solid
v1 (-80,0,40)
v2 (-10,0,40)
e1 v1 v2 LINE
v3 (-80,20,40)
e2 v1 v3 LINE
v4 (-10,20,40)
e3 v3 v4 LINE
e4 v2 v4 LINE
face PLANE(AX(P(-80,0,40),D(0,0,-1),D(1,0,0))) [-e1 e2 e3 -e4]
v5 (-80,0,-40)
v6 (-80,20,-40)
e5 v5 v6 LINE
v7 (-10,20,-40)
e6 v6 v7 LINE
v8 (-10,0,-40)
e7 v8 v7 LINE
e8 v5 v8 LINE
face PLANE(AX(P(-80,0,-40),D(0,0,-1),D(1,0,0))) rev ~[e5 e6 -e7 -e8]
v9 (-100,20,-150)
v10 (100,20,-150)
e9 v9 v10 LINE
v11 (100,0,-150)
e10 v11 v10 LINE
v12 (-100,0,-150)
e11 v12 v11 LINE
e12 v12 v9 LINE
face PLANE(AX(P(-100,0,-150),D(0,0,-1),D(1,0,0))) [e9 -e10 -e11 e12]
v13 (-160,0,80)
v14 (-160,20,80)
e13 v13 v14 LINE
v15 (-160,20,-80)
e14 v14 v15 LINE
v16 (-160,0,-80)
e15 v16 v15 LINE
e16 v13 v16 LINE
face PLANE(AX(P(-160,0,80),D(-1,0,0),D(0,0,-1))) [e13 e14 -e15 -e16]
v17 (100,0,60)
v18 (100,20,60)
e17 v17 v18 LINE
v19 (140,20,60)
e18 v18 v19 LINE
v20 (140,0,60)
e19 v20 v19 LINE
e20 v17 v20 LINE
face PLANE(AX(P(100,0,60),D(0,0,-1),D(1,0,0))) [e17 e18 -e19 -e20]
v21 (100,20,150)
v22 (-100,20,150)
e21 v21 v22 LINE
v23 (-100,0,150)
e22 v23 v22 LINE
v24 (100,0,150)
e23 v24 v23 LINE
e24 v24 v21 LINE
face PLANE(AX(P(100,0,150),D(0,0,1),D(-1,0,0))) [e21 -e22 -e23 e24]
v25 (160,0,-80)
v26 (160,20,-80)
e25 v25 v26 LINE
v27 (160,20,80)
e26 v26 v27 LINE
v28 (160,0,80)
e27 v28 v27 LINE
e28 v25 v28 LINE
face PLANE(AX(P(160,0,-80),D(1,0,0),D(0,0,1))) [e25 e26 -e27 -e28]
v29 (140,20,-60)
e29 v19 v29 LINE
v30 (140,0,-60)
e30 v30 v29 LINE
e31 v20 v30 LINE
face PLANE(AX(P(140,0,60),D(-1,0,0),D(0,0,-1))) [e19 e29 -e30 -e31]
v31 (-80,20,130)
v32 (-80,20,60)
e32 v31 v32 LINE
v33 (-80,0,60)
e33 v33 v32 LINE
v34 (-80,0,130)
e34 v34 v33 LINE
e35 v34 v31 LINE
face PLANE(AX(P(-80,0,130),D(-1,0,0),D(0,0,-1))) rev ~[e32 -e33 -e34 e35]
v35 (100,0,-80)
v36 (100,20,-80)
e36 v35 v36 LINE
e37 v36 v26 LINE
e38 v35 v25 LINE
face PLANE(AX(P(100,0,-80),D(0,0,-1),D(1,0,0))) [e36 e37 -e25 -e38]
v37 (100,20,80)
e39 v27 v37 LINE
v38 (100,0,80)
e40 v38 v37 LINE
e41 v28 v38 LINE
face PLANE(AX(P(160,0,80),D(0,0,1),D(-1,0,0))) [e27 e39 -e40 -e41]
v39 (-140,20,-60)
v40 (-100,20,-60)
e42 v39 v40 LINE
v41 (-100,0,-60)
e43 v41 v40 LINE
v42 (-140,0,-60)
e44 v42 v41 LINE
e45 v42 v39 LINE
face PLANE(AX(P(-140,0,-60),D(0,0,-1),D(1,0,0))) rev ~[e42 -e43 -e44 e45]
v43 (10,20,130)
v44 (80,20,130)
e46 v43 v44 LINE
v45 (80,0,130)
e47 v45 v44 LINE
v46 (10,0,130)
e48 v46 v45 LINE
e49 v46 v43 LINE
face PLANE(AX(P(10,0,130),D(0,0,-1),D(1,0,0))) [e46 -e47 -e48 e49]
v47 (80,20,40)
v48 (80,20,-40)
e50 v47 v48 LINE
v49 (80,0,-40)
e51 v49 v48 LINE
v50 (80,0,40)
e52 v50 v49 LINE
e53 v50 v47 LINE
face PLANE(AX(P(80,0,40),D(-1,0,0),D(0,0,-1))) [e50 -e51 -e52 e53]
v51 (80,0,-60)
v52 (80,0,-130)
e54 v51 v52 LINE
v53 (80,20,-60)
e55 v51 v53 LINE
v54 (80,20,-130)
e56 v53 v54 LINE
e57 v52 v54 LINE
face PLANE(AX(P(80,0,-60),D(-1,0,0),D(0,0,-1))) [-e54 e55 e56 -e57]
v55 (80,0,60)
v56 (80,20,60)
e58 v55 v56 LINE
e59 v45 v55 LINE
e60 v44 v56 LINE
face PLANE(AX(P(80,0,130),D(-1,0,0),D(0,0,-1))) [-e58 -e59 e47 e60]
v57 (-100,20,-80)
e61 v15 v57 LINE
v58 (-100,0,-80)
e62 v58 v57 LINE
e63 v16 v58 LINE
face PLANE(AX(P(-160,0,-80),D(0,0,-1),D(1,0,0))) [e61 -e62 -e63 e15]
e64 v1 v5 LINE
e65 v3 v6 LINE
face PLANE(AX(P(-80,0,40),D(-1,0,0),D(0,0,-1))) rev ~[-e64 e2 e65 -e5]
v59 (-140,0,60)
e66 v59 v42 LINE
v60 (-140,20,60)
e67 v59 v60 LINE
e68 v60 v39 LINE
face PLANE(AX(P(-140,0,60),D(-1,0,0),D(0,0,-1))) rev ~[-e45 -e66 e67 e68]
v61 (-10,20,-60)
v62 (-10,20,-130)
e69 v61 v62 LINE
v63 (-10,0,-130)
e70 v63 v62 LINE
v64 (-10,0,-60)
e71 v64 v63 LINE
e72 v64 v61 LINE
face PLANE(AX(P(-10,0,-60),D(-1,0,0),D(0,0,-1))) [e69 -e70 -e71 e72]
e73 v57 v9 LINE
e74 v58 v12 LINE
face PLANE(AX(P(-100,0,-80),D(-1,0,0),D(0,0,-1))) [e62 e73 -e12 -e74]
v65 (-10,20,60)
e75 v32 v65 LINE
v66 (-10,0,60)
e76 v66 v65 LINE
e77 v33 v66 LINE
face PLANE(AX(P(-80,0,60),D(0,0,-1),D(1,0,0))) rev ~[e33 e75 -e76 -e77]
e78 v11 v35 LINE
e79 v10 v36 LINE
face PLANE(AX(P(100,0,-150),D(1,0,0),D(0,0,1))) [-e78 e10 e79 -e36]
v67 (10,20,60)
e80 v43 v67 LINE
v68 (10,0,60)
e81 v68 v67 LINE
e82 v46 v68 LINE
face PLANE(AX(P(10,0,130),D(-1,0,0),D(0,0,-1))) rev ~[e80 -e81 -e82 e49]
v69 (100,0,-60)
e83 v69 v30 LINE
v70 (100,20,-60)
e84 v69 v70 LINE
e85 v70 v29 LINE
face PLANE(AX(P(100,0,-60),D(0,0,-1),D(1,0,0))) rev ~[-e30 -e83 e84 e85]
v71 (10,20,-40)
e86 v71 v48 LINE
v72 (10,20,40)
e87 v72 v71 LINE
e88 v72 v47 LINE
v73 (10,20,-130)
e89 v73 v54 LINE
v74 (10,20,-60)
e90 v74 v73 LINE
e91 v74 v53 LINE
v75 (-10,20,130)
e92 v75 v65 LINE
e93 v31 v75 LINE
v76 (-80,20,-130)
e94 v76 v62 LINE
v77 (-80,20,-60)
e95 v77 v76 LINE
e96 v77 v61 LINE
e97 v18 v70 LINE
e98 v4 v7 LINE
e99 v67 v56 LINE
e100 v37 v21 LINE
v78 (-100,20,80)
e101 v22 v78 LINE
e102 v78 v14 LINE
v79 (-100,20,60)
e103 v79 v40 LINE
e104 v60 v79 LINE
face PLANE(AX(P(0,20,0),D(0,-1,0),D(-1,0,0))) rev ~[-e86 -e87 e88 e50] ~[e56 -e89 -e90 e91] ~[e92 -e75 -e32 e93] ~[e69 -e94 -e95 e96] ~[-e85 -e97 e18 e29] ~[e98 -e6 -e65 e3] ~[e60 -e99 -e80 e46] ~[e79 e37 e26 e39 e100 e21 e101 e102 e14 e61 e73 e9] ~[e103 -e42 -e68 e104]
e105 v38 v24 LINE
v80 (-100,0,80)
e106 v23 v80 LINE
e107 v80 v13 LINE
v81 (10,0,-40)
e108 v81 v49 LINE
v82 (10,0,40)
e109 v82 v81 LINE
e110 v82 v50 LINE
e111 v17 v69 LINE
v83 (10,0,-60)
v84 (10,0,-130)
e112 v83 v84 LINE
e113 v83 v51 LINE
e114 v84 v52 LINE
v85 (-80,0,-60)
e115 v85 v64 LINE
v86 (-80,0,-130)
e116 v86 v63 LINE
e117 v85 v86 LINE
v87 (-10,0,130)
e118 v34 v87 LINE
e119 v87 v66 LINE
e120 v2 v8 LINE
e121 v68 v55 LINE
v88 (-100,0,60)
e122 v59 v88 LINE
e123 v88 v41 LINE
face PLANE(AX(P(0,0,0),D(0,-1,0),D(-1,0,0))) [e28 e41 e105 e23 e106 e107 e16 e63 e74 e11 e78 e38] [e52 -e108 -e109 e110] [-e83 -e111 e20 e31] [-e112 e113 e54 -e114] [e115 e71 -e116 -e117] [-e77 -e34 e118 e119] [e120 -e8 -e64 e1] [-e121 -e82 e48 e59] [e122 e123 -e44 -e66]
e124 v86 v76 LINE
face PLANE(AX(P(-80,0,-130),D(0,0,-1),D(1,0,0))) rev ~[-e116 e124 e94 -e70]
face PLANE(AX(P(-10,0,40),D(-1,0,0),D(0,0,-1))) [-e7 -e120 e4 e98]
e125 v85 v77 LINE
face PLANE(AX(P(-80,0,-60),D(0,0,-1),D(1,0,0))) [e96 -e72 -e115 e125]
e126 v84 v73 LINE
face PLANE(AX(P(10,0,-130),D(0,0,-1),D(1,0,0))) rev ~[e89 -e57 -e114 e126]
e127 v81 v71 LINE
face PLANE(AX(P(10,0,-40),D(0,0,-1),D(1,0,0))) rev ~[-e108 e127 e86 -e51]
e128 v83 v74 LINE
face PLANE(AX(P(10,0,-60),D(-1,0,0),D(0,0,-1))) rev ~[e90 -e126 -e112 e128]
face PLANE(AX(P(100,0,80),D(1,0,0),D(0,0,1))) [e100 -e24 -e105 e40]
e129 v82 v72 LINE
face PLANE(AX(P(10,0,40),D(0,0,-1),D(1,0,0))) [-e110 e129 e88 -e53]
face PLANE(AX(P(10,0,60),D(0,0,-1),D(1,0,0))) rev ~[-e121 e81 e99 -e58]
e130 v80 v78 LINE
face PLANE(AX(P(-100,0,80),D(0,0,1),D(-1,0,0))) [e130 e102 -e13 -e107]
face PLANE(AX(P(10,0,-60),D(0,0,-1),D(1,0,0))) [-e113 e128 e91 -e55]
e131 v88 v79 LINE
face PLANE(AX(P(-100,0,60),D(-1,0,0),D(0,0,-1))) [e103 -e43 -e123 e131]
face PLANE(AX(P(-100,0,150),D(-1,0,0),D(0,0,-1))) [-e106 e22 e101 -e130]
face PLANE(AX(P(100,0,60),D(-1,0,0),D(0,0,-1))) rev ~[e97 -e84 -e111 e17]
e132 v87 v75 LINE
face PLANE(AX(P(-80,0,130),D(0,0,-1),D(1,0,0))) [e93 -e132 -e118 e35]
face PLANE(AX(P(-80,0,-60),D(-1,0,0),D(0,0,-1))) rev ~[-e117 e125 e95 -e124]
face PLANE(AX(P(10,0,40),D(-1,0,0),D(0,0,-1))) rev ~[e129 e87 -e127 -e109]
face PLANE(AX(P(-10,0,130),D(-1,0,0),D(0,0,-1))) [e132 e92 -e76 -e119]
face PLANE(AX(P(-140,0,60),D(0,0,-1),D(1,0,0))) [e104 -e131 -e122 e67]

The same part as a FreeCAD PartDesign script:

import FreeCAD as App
import Part
import Sketcher
Q = App.Units.Quantity

doc = App.newDocument("Part")
body = doc.addObject("PartDesign::Body", "Body")

# Sketch on XZ plane
sketch1 = doc.addObject("Sketcher::SketchObject", "Sketch")
body.addObject(sketch1)
sketch1.AttachmentSupport = (doc.XZ_Plane, [""])
sketch1.MapMode = "FlatFace"
sketch1.addGeometry(Part.LineSegment(App.Vector(100, -150, 0), App.Vector(-100, -150, 0)), False)
sketch1.addGeometry(Part.LineSegment(App.Vector(-100, -150, 0), App.Vector(-100, -80, 0)), False)
sketch1.addGeometry(Part.LineSegment(App.Vector(-100, -80, 0), App.Vector(-160, -80, 0)), False)
sketch1.addGeometry(Part.LineSegment(App.Vector(-160, -80, 0), App.Vector(-160, 80, 0)), False)
sketch1.addGeometry(Part.LineSegment(App.Vector(-160, 80, 0), App.Vector(-100, 80, 0)), False)
sketch1.addGeometry(Part.LineSegment(App.Vector(-100, 80, 0), App.Vector(-100, 150, 0)), False)
sketch1.addGeometry(Part.LineSegment(App.Vector(-100, 150, 0), App.Vector(100, 150, 0)), False)
sketch1.addGeometry(Part.LineSegment(App.Vector(100, 150, 0), App.Vector(100, 80, 0)), False)
sketch1.addGeometry(Part.LineSegment(App.Vector(100, 80, 0), App.Vector(160, 80, 0)), False)
sketch1.addGeometry(Part.LineSegment(App.Vector(160, 80, 0), App.Vector(160, -80, 0)), False)
sketch1.addGeometry(Part.LineSegment(App.Vector(160, -80, 0), App.Vector(100, -80, 0)), False)
sketch1.addGeometry(Part.LineSegment(App.Vector(100, -80, 0), App.Vector(100, -150, 0)), False)
sketch1.addGeometry(Part.LineSegment(App.Vector(10, 130, 0), App.Vector(10, 60, 0)), False)
sketch1.addGeometry(Part.LineSegment(App.Vector(10, 60, 0), App.Vector(80, 60, 0)), False)
sketch1.addGeometry(Part.LineSegment(App.Vector(80, 60, 0), App.Vector(80, 130, 0)), False)
sketch1.addGeometry(Part.LineSegment(App.Vector(80, 130, 0), App.Vector(10, 130, 0)), False)
sketch1.addGeometry(Part.LineSegment(App.Vector(-80, 130, 0), App.Vector(-80, 60, 0)), False)
sketch1.addGeometry(Part.LineSegment(App.Vector(-80, 60, 0), App.Vector(-10, 60, 0)), False)
sketch1.addGeometry(Part.LineSegment(App.Vector(-10, 60, 0), App.Vector(-10, 130, 0)), False)
sketch1.addGeometry(Part.LineSegment(App.Vector(-10, 130, 0), App.Vector(-80, 130, 0)), False)
sketch1.addGeometry(Part.LineSegment(App.Vector(100, 60, 0), App.Vector(100, -60, 0)), False)
sketch1.addGeometry(Part.LineSegment(App.Vector(100, -60, 0), App.Vector(140, -60, 0)), False)
sketch1.addGeometry(Part.LineSegment(App.Vector(140, -60, 0), App.Vector(140, 60, 0)), False)
sketch1.addGeometry(Part.LineSegment(App.Vector(140, 60, 0), App.Vector(100, 60, 0)), False)
sketch1.addGeometry(Part.LineSegment(App.Vector(10, 40, 0), App.Vector(10, -40, 0)), False)
sketch1.addGeometry(Part.LineSegment(App.Vector(10, -40, 0), App.Vector(80, -40, 0)), False)
sketch1.addGeometry(Part.LineSegment(App.Vector(80, -40, 0), App.Vector(80, 40, 0)), False)
sketch1.addGeometry(Part.LineSegment(App.Vector(80, 40, 0), App.Vector(10, 40, 0)), False)
sketch1.addGeometry(Part.LineSegment(App.Vector(10, -60, 0), App.Vector(10, -130, 0)), False)
sketch1.addGeometry(Part.LineSegment(App.Vector(10, -130, 0), App.Vector(80, -130, 0)), False)
sketch1.addGeometry(Part.LineSegment(App.Vector(80, -130, 0), App.Vector(80, -60, 0)), False)
sketch1.addGeometry(Part.LineSegment(App.Vector(80, -60, 0), App.Vector(10, -60, 0)), False)
sketch1.addGeometry(Part.LineSegment(App.Vector(-80, 40, 0), App.Vector(-80, -40, 0)), False)
sketch1.addGeometry(Part.LineSegment(App.Vector(-80, -40, 0), App.Vector(-10, -40, 0)), False)
sketch1.addGeometry(Part.LineSegment(App.Vector(-10, -40, 0), App.Vector(-10, 40, 0)), False)
sketch1.addGeometry(Part.LineSegment(App.Vector(-10, 40, 0), App.Vector(-80, 40, 0)), False)
sketch1.addGeometry(Part.LineSegment(App.Vector(-140, 60, 0), App.Vector(-140, -60, 0)), False)
sketch1.addGeometry(Part.LineSegment(App.Vector(-140, -60, 0), App.Vector(-100, -60, 0)), False)
sketch1.addGeometry(Part.LineSegment(App.Vector(-100, -60, 0), App.Vector(-100, 60, 0)), False)
sketch1.addGeometry(Part.LineSegment(App.Vector(-100, 60, 0), App.Vector(-140, 60, 0)), False)
sketch1.addGeometry(Part.LineSegment(App.Vector(-80, -60, 0), App.Vector(-80, -130, 0)), False)
sketch1.addGeometry(Part.LineSegment(App.Vector(-80, -130, 0), App.Vector(-10, -130, 0)), False)
sketch1.addGeometry(Part.LineSegment(App.Vector(-10, -130, 0), App.Vector(-10, -60, 0)), False)
sketch1.addGeometry(Part.LineSegment(App.Vector(-10, -60, 0), App.Vector(-80, -60, 0)), False)
sketch1.addConstraint(Sketcher.Constraint("Coincident", 0, 2, 1, 1))
sketch1.addConstraint(Sketcher.Constraint("Coincident", 1, 2, 2, 1))
sketch1.addConstraint(Sketcher.Constraint("Coincident", 2, 2, 3, 1))
sketch1.addConstraint(Sketcher.Constraint("Coincident", 3, 2, 4, 1))
sketch1.addConstraint(Sketcher.Constraint("Coincident", 4, 2, 5, 1))
sketch1.addConstraint(Sketcher.Constraint("Coincident", 5, 2, 6, 1))
sketch1.addConstraint(Sketcher.Constraint("Coincident", 6, 2, 7, 1))
sketch1.addConstraint(Sketcher.Constraint("Coincident", 7, 2, 8, 1))
sketch1.addConstraint(Sketcher.Constraint("Coincident", 8, 2, 9, 1))
sketch1.addConstraint(Sketcher.Constraint("Coincident", 9, 2, 10, 1))
sketch1.addConstraint(Sketcher.Constraint("Coincident", 10, 2, 11, 1))
sketch1.addConstraint(Sketcher.Constraint("Coincident", 11, 2, 0, 1))
sketch1.addConstraint(Sketcher.Constraint("Coincident", 12, 2, 13, 1))
sketch1.addConstraint(Sketcher.Constraint("Coincident", 13, 2, 14, 1))
sketch1.addConstraint(Sketcher.Constraint("Coincident", 14, 2, 15, 1))
sketch1.addConstraint(Sketcher.Constraint("Coincident", 15, 2, 12, 1))
sketch1.addConstraint(Sketcher.Constraint("Coincident", 16, 2, 17, 1))
sketch1.addConstraint(Sketcher.Constraint("Coincident", 17, 2, 18, 1))
sketch1.addConstraint(Sketcher.Constraint("Coincident", 18, 2, 19, 1))
sketch1.addConstraint(Sketcher.Constraint("Coincident", 19, 2, 16, 1))
sketch1.addConstraint(Sketcher.Constraint("Coincident", 20, 2, 21, 1))
sketch1.addConstraint(Sketcher.Constraint("Coincident", 21, 2, 22, 1))
sketch1.addConstraint(Sketcher.Constraint("Coincident", 22, 2, 23, 1))
sketch1.addConstraint(Sketcher.Constraint("Coincident", 23, 2, 20, 1))
sketch1.addConstraint(Sketcher.Constraint("Coincident", 24, 2, 25, 1))
sketch1.addConstraint(Sketcher.Constraint("Coincident", 25, 2, 26, 1))
sketch1.addConstraint(Sketcher.Constraint("Coincident", 26, 2, 27, 1))
sketch1.addConstraint(Sketcher.Constraint("Coincident", 27, 2, 24, 1))
sketch1.addConstraint(Sketcher.Constraint("Coincident", 28, 2, 29, 1))
sketch1.addConstraint(Sketcher.Constraint("Coincident", 29, 2, 30, 1))
sketch1.addConstraint(Sketcher.Constraint("Coincident", 30, 2, 31, 1))
sketch1.addConstraint(Sketcher.Constraint("Coincident", 31, 2, 28, 1))
sketch1.addConstraint(Sketcher.Constraint("Coincident", 32, 2, 33, 1))
sketch1.addConstraint(Sketcher.Constraint("Coincident", 33, 2, 34, 1))
sketch1.addConstraint(Sketcher.Constraint("Coincident", 34, 2, 35, 1))
sketch1.addConstraint(Sketcher.Constraint("Coincident", 35, 2, 32, 1))
sketch1.addConstraint(Sketcher.Constraint("Coincident", 36, 2, 37, 1))
sketch1.addConstraint(Sketcher.Constraint("Coincident", 37, 2, 38, 1))
sketch1.addConstraint(Sketcher.Constraint("Coincident", 38, 2, 39, 1))
sketch1.addConstraint(Sketcher.Constraint("Coincident", 39, 2, 36, 1))
sketch1.addConstraint(Sketcher.Constraint("Coincident", 40, 2, 41, 1))
sketch1.addConstraint(Sketcher.Constraint("Coincident", 41, 2, 42, 1))
sketch1.addConstraint(Sketcher.Constraint("Coincident", 42, 2, 43, 1))
sketch1.addConstraint(Sketcher.Constraint("Coincident", 43, 2, 40, 1))
sketch1.addConstraint(Sketcher.Constraint("Horizontal", 0))
sketch1.addConstraint(Sketcher.Constraint("Vertical", 1))
sketch1.addConstraint(Sketcher.Constraint("Horizontal", 2))
sketch1.addConstraint(Sketcher.Constraint("Vertical", 3))
sketch1.addConstraint(Sketcher.Constraint("Horizontal", 4))
sketch1.addConstraint(Sketcher.Constraint("Vertical", 5))
sketch1.addConstraint(Sketcher.Constraint("Horizontal", 6))
sketch1.addConstraint(Sketcher.Constraint("Vertical", 7))
sketch1.addConstraint(Sketcher.Constraint("Horizontal", 8))
sketch1.addConstraint(Sketcher.Constraint("Vertical", 9))
sketch1.addConstraint(Sketcher.Constraint("Horizontal", 10))
sketch1.addConstraint(Sketcher.Constraint("Vertical", 11))
sketch1.addConstraint(Sketcher.Constraint("Vertical", 12))
sketch1.addConstraint(Sketcher.Constraint("Horizontal", 13))
sketch1.addConstraint(Sketcher.Constraint("Vertical", 14))
sketch1.addConstraint(Sketcher.Constraint("Horizontal", 15))
sketch1.addConstraint(Sketcher.Constraint("Vertical", 16))
sketch1.addConstraint(Sketcher.Constraint("Horizontal", 17))
sketch1.addConstraint(Sketcher.Constraint("Vertical", 18))
sketch1.addConstraint(Sketcher.Constraint("Horizontal", 19))
sketch1.addConstraint(Sketcher.Constraint("Vertical", 20))
sketch1.addConstraint(Sketcher.Constraint("Horizontal", 21))
sketch1.addConstraint(Sketcher.Constraint("Vertical", 22))
sketch1.addConstraint(Sketcher.Constraint("Horizontal", 23))
sketch1.addConstraint(Sketcher.Constraint("Vertical", 24))
sketch1.addConstraint(Sketcher.Constraint("Horizontal", 25))
sketch1.addConstraint(Sketcher.Constraint("Vertical", 26))
sketch1.addConstraint(Sketcher.Constraint("Horizontal", 27))
sketch1.addConstraint(Sketcher.Constraint("Vertical", 28))
sketch1.addConstraint(Sketcher.Constraint("Horizontal", 29))
sketch1.addConstraint(Sketcher.Constraint("Vertical", 30))
sketch1.addConstraint(Sketcher.Constraint("Horizontal", 31))
sketch1.addConstraint(Sketcher.Constraint("Vertical", 32))
sketch1.addConstraint(Sketcher.Constraint("Horizontal", 33))
sketch1.addConstraint(Sketcher.Constraint("Vertical", 34))
sketch1.addConstraint(Sketcher.Constraint("Horizontal", 35))
sketch1.addConstraint(Sketcher.Constraint("Vertical", 36))
sketch1.addConstraint(Sketcher.Constraint("Horizontal", 37))
sketch1.addConstraint(Sketcher.Constraint("Vertical", 38))
sketch1.addConstraint(Sketcher.Constraint("Horizontal", 39))
sketch1.addConstraint(Sketcher.Constraint("Vertical", 40))
sketch1.addConstraint(Sketcher.Constraint("Horizontal", 41))
sketch1.addConstraint(Sketcher.Constraint("Vertical", 42))
sketch1.addConstraint(Sketcher.Constraint("Horizontal", 43))
sketch1.addConstraint(Sketcher.Constraint("Symmetric", 0, 2, 6, 2, -1, 1))
sketch1.addConstraint(Sketcher.Constraint("Symmetric", 2, 2, 8, 2, -1, 1))
sketch1.addConstraint(Sketcher.Constraint("Symmetric", 4, 2, 10, 2, -1, 1))
sketch1.addConstraint(Sketcher.Constraint("Symmetric", 18, 2, 28, 2, -1, 1))
sketch1.addConstraint(Sketcher.Constraint("Symmetric", 16, 2, 30, 2, -1, 1))
sketch1.addConstraint(Sketcher.Constraint("Symmetric", 26, 2, 32, 2, -1, 1))
sketch1.addConstraint(Sketcher.Constraint("Symmetric", 24, 2, 34, 2, -1, 1))
sketch1.addConstraint(Sketcher.Constraint("Symmetric", 22, 2, 36, 2, -1, 1))
sketch1.addConstraint(Sketcher.Constraint("Symmetric", 20, 2, 38, 2, -1, 1))
sketch1.addConstraint(Sketcher.Constraint("Symmetric", 14, 2, 40, 2, -1, 1))
sketch1.addConstraint(Sketcher.Constraint("Symmetric", 12, 2, 42, 2, -1, 1))
sketch1.addConstraint(Sketcher.Constraint("Symmetric", 4, 2, 7, 2, -2))
sketch1.addConstraint(Sketcher.Constraint("Symmetric", 13, 2, 16, 2, -2))
sketch1.addConstraint(Sketcher.Constraint("Symmetric", 15, 2, 18, 2, -2))
sketch1.addConstraint(Sketcher.Constraint("Horizontal", 17, 2, 22, 2))
sketch1.addConstraint(Sketcher.Constraint("Horizontal", 21, 2, 30, 2))
sketch1.addConstraint(Sketcher.Constraint("Horizontal", 25, 2, 32, 2))
sketch1.addConstraint(Sketcher.Constraint("Vertical", 11, 2, 20, 2))
sketch1.addConstraint(Sketcher.Constraint("Vertical", 15, 2, 24, 2))
sketch1.addConstraint(Sketcher.Constraint("Vertical", 14, 2, 25, 2))
sketch1.addConstraint(Sketcher.Constraint("Equal", 43, 1))
sketch1.addConstraint(Sketcher.Constraint("Equal", 11, 12))
sketch1.addConstraint(Sketcher.Constraint("DistanceX", 0, 2, 0, 1, Q("200 mm")))
sketch1.addConstraint(Sketcher.Constraint("DistanceX", 2, 2, 2, 1, Q("60 mm")))
sketch1.addConstraint(Sketcher.Constraint("DistanceX", 13, 1, 13, 2, Q("70 mm")))
sketch1.addConstraint(Sketcher.Constraint("DistanceX", 21, 1, 21, 2, Q("40 mm")))
sketch1.addConstraint(Sketcher.Constraint("DistanceY", 3, 1, 3, 2, Q("160 mm")))
sketch1.addConstraint(Sketcher.Constraint("DistanceY", 20, 2, 20, 1, Q("120 mm")))
sketch1.addConstraint(Sketcher.Constraint("DistanceY", 24, 2, 24, 1, Q("80 mm")))
sketch1.addConstraint(Sketcher.Constraint("DistanceX", -1, 1, 12, 2, Q("10 mm")))
pad1 = doc.addObject("PartDesign::Pad", "Pad")
body.addObject(pad1)
pad1.Profile = sketch1
pad1.Length = 20
pad1.Reversed = True

doc.recompute()
